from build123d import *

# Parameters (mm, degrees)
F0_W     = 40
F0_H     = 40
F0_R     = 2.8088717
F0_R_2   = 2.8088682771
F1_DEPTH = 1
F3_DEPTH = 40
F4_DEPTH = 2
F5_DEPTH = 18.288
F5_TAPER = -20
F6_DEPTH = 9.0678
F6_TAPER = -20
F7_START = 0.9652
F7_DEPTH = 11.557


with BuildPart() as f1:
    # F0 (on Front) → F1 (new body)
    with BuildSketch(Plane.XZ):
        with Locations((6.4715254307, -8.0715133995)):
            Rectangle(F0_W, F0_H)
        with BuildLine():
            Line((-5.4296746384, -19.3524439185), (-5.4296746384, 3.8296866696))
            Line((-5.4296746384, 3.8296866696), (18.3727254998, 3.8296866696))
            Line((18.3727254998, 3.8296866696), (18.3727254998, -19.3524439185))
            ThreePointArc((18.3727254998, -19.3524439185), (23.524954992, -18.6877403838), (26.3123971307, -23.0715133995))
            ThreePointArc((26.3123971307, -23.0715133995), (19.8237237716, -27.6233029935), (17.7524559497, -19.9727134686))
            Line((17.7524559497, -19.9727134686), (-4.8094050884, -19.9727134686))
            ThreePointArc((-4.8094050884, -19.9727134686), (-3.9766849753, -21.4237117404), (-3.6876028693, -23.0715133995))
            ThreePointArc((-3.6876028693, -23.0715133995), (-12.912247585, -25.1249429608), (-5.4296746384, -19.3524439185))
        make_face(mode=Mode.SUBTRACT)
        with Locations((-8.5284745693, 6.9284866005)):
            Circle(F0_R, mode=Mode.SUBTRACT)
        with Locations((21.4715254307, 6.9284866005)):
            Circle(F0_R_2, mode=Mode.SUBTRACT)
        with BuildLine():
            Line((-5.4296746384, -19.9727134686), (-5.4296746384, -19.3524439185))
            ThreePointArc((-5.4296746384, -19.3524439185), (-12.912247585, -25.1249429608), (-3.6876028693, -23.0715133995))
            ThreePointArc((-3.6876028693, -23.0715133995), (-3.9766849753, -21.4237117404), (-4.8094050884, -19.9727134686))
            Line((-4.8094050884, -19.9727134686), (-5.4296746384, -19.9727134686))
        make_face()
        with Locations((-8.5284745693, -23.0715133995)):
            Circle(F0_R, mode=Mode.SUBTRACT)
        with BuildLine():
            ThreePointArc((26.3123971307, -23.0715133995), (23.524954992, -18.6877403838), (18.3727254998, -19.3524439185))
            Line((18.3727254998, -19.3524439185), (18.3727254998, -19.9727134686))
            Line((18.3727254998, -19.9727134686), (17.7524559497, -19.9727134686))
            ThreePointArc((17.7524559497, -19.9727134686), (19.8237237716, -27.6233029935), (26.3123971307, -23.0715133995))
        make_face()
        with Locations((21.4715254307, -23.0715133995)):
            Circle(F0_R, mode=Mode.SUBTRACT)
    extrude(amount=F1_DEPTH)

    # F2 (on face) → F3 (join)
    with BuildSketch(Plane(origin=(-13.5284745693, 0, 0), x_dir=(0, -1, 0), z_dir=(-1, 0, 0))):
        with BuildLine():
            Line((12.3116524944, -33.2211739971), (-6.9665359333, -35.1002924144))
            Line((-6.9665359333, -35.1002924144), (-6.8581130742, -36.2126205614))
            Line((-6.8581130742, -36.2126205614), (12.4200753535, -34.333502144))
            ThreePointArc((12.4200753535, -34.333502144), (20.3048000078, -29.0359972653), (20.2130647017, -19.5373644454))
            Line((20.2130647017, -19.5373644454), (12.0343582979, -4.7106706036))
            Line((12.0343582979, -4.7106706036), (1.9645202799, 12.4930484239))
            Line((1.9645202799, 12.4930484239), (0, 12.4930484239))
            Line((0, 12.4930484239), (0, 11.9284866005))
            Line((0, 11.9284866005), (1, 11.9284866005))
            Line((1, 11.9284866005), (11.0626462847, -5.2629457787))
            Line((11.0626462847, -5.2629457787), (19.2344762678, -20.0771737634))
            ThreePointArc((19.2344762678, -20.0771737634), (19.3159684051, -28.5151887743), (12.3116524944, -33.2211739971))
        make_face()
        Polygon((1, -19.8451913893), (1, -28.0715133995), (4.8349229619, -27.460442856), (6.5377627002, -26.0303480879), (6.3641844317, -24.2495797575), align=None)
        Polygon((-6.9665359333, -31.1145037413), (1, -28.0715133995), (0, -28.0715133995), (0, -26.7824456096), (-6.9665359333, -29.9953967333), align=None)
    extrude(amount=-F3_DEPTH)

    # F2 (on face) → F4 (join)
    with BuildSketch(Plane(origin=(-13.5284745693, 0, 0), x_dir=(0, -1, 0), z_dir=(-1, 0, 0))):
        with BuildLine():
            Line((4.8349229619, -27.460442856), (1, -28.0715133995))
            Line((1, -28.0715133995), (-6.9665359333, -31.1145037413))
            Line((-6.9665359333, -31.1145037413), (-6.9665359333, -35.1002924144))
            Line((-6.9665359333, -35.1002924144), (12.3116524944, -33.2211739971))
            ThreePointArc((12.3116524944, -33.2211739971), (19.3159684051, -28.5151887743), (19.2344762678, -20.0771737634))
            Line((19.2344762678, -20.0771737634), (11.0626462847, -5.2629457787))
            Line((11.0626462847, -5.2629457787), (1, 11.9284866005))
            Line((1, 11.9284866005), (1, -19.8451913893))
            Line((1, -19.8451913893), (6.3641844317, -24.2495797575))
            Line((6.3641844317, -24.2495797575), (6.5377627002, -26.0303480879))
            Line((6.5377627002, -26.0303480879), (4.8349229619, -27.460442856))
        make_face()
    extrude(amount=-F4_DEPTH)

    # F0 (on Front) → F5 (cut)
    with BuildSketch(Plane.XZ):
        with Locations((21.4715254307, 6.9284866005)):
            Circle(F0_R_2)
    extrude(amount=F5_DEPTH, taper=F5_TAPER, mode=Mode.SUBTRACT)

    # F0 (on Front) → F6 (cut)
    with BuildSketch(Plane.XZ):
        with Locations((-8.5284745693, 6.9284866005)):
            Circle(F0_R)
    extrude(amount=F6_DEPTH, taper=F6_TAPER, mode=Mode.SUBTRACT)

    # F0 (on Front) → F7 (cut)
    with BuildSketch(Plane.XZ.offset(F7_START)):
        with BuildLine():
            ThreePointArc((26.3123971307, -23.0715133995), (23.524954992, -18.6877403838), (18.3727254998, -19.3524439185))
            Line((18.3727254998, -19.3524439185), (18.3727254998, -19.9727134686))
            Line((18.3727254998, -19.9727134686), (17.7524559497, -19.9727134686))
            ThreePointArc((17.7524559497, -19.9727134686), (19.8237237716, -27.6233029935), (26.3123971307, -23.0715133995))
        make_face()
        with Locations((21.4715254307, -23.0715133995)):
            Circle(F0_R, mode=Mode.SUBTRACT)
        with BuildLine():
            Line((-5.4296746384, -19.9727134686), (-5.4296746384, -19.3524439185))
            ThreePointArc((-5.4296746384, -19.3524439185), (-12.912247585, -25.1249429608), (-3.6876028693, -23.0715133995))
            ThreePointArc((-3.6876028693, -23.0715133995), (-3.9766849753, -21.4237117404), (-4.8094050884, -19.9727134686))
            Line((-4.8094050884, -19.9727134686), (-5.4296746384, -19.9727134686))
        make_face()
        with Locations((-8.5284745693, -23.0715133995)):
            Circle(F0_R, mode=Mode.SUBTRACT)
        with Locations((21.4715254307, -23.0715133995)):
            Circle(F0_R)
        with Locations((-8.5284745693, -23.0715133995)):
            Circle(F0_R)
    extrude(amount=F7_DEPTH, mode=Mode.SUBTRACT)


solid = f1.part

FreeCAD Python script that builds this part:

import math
import FreeCAD as App
import Part
import Sketcher
Q = App.Units.Quantity


def add_polygon(sketch, points):
    """Adds a closed chain of lines whose ends are joined by coincident constraints."""
    first, n = sketch.GeometryCount, len(points)
    for a, b in zip(points, points[1:] + points[:1]):
        sketch.addGeometry(Part.LineSegment(App.Vector(*a, 0), App.Vector(*b, 0)), False)
    for i in range(n):
        sketch.addConstraint(Sketcher.Constraint("Coincident", first + i, 2, first + (i + 1) % n, 1))

doc = App.newDocument("Part")
body = doc.addObject("PartDesign::Body", "Body")

# Sketch on XZ plane
sketch1 = doc.addObject("Sketcher::SketchObject", "Sketch")
body.addObject(sketch1)
sketch1.AttachmentSupport = (doc.XZ_Plane, [""])
sketch1.MapMode = "FlatFace"
add_polygon(sketch1, [(-13.5, 11.9), (-13.5, -28.1), (26.5, -28.1), (26.5, 11.9)])  # lines 0-3
sketch1.addGeometry(Part.Circle(App.Vector(-8.5, -23.1, 0), App.Vector(0, 0, 1), 2.8), False)  # 4
sketch1.addGeometry(Part.Circle(App.Vector(21.5, -23.1, 0), App.Vector(0, 0, 1), 2.8), False)  # 5
add_polygon(sketch1, [(-5.4, 3.8), (18.4, 3.8), (18.4, -20), (-5.4, -20)])  # lines 6-9
sketch1.addGeometry(Part.Circle(App.Vector(-8.5, 6.9, 0), App.Vector(0, 0, 1), 2.8), False)  # 10
sketch1.addGeometry(Part.Circle(App.Vector(21.5, 6.9, 0), App.Vector(0, 0, 1), 2.8), False)  # 11
sketch1.addConstraint(Sketcher.Constraint("Vertical", 0))
sketch1.addConstraint(Sketcher.Constraint("Horizontal", 1))
sketch1.addConstraint(Sketcher.Constraint("Vertical", 2))
sketch1.addConstraint(Sketcher.Constraint("Horizontal", 3))
sketch1.addConstraint(Sketcher.Constraint("Horizontal", 6))
sketch1.addConstraint(Sketcher.Constraint("Vertical", 7))
sketch1.addConstraint(Sketcher.Constraint("Horizontal", 8))
sketch1.addConstraint(Sketcher.Constraint("Vertical", 9))
sketch1.addConstraint(Sketcher.Constraint("Equal", 4, 5))
sketch1.addConstraint(Sketcher.Constraint("Equal", 5, 10))
sketch1.addConstraint(Sketcher.Constraint("Horizontal", 4, 3, 5, 3))
sketch1.addConstraint(Sketcher.Constraint("Horizontal", 10, 3, 11, 3))
sketch1.addConstraint(Sketcher.Constraint("Vertical", 4, 3, 10, 3))
sketch1.addConstraint(Sketcher.Constraint("Vertical", 5, 3, 11, 3))
sketch1.addConstraint(Sketcher.Constraint("Equal", 3, 0))
sketch1.addConstraint(Sketcher.Constraint("Equal", 8, 7))
sketch1.addConstraint(Sketcher.Constraint("DistanceX", 6, 2, 11, 3, Q("0.122 in")))
sketch1.addConstraint(Sketcher.Constraint("DistanceY", 6, 2, 11, 3, Q("0.122 in")))
sketch1.addConstraint(Sketcher.Constraint("DistanceY", 5, 3, 7, 2, Q("0.122 in")))
sketch1.addConstraint(Sketcher.Constraint("DistanceX", 4, 3, 8, 2, Q("0.122 in")))
sketch1.addConstraint(Sketcher.Constraint("Diameter", 4, Q("5.617743 mm")))
sketch1.addConstraint(Sketcher.Constraint("Diameter", 11, Q("5.617737 mm")))
sketch1.addConstraint(Sketcher.Constraint("DistanceX", 1, 1, 1, 2, Q("40 mm")))
sketch1.addConstraint(Sketcher.Constraint("DistanceX", 6, 1, 6, 2, Q("23.8024 mm")))
sketch1.addConstraint(Sketcher.Constraint("DistanceX", 0, 2, 4, 3, Q("5 mm")))
sketch1.addConstraint(Sketcher.Constraint("DistanceY", 0, 2, 4, 3, Q("5 mm")))
sketch1.addConstraint(Sketcher.Constraint("DistanceX", 4, 3, -1, 1, Q("8.528475 mm")))
sketch1.addConstraint(Sketcher.Constraint("DistanceY", 4, 3, -1, 1, Q("23.071513 mm")))
pad1 = doc.addObject("PartDesign::Pad", "Pad")
body.addObject(pad1)
pad1.Profile = sketch1
pad1.Length = 1

# Sketch on YZ plane
sketch2 = doc.addObject("Sketcher::SketchObject", "Sketch001")
body.addObject(sketch2)
sketch2.AttachmentSupport = (doc.YZ_Plane, [""])
sketch2.MapMode = "FlatFace"
sketch2.AttachmentOffset = App.Placement(App.Vector(0, 0, -13.528475), App.Rotation())
sketch2.addGeometry(Part.LineSegment(App.Vector(-12.3, -33.2, 0), App.Vector(7, -35.1, 0)), False)  # 0
sketch2.addGeometry(Part.LineSegment(App.Vector(7, -35.1, 0), App.Vector(6.9, -36.2, 0)), False)  # 1
sketch2.addGeometry(Part.LineSegment(App.Vector(6.9, -36.2, 0), App.Vector(-12.4, -34.3, 0)), False)  # 2
sketch2.addGeometry(Part.ArcOfCircle(Part.Circle(App.Vector(-11.4, -24.4, 0), App.Vector(0, 0, 1), 10), math.radians(151), math.radians(264)), False)  # 3
sketch2.addGeometry(Part.LineSegment(App.Vector(-20.2, -19.5, 0), App.Vector(-12, -4.7, 0)), False)  # 4
sketch2.addGeometry(Part.LineSegment(App.Vector(-12, -4.7, 0), App.Vector(-2, 12.5, 0)), False)  # 5
sketch2.addGeometry(Part.LineSegment(App.Vector(-2, 12.5, 0), App.Vector(0, 12.5, 0)), False)  # 6
sketch2.addGeometry(Part.LineSegment(App.Vector(0, 12.5, 0), App.Vector(0, 11.9, 0)), False)  # 7
sketch2.addGeometry(Part.LineSegment(App.Vector(0, 11.9, 0), App.Vector(-1, 11.9, 0)), False)  # 8
sketch2.addGeometry(Part.LineSegment(App.Vector(-1, 11.9, 0), App.Vector(-11.1, -5.3, 0)), False)  # 9
sketch2.addGeometry(Part.LineSegment(App.Vector(-11.1, -5.3, 0), App.Vector(-19.2, -20.1, 0)), False)  # 10
sketch2.addGeometry(Part.ArcOfCircle(Part.Circle(App.Vector(-11.4, -24.4, 0), App.Vector(0, 0, 1), 8.9), math.radians(151), math.radians(264)), False)  # 11
add_polygon(sketch2, [(-1, -19.8), (-1, -28.1), (-4.8, -27.5), (-6.5, -26), (-6.4, -24.2)])  # lines 12-16
add_polygon(sketch2, [(7, -31.1), (-1, -28.1), (0, -28.1), (0, -26.8), (7, -30)])  # lines 17-21
sketch2.addConstraint(Sketcher.Constraint("Coincident", 0, 2, 1, 1))
sketch2.addConstraint(Sketcher.Constraint("Coincident", 1, 2, 2, 1))
sketch2.addConstraint(Sketcher.Constraint("Tangent", 2, 2, 3, 2))
sketch2.addConstraint(Sketcher.Constraint("Tangent", 3, 1, 4, 1))
sketch2.addConstraint(Sketcher.Constraint("Coincident", 4, 2, 5, 1))
sketch2.addConstraint(Sketcher.Constraint("Coincident", 5, 2, 6, 1))
sketch2.addConstraint(Sketcher.Constraint("Coincident", 6, 2, 7, 1))
sketch2.addConstraint(Sketcher.Constraint("Coincident", 7, 2, 8, 1))
sketch2.addConstraint(Sketcher.Constraint("Coincident", 8, 2, 9, 1))
sketch2.addConstraint(Sketcher.Constraint("Coincident", 9, 2, 10, 1))
sketch2.addConstraint(Sketcher.Constraint("Tangent", 10, 2, 11, 1))
sketch2.addConstraint(Sketcher.Constraint("Tangent", 11, 2, 0, 1))
sketch2.addConstraint(Sketcher.Constraint("Horizontal", 6))
sketch2.addConstraint(Sketcher.Constraint("Vertical", 7))
sketch2.addConstraint(Sketcher.Constraint("Horizontal", 8))
sketch2.addConstraint(Sketcher.Constraint("Vertical", 12))
sketch2.addConstraint(Sketcher.Constraint("Horizontal", 18))
sketch2.addConstraint(Sketcher.Constraint("Vertical", 19))
sketch2.addConstraint(Sketcher.Constraint("Vertical", 21))
sketch2.addConstraint(Sketcher.Constraint("Coincident", 11, 3, 3, 3))
sketch2.addConstraint(Sketcher.Constraint("Coincident", 17, 2, 12, 2))
sketch2.addConstraint(Sketcher.Constraint("PointOnObject", 6, 2, -2))
sketch2.addConstraint(Sketcher.Constraint("PointOnObject", 18, 2, -2))
sketch2.addConstraint(Sketcher.Constraint("Perpendicular", 0, 1))
sketch2.addConstraint(Sketcher.Constraint("Perpendicular", 1, 2))
sketch2.addConstraint(Sketcher.Constraint("Parallel", 5, 9))
sketch2.addConstraint(Sketcher.Constraint("Parallel", 4, 10))
sketch2.addConstraint(Sketcher.Constraint("Perpendicular", 2, 15))
sketch2.addConstraint(Sketcher.Constraint("Vertical", 8, 2, 12, 2))
sketch2.addConstraint(Sketcher.Constraint("Vertical", 0, 2, 20, 2))
sketch2.addConstraint(Sketcher.Constraint("Distance", 1, Q("0.044 in")))
sketch2.addConstraint(Sketcher.Constraint("Radius", 3, Q("10.00895 mm")))
sketch2.addConstraint(Sketcher.Constraint("DistanceX", 8, 2, 8, 1, Q("1 mm")))
sketch2.addConstraint(Sketcher.Constraint("Distance", 14, Q("2.223698 mm")))
sketch2.addConstraint(Sketcher.Constraint("DistanceX", 6, 1, 6, 2, Q("1.96452 mm")))
sketch2.addConstraint(Sketcher.Constraint("DistanceY", 7, 2, 7, 1, Q("0.564562 mm")))
sketch2.addConstraint(Sketcher.Constraint("DistanceY", 3, 3, 3, 1, Q("4.8344 mm")))
sketch2.addConstraint(Sketcher.Constraint("DistanceX", 3, 1, 0, 2, Q("27.179601 mm")))
sketch2.addConstraint(Sketcher.Constraint("DistanceX", 10, 2, 2, 2, Q("6.814401 mm")))
sketch2.addConstraint(Sketcher.Constraint("Distance", 4, Q("16.93287 mm")))
sketch2.addConstraint(Sketcher.Constraint("Distance", 5, Q("19.934131 mm")))
sketch2.addConstraint(Sketcher.Constraint("DistanceY", 12, 2, 12, 1, Q("8.226322 mm")))
sketch2.addConstraint(Sketcher.Constraint("DistanceY", 19, 1, 19, 2, Q("1.289068 mm")))
sketch2.addConstraint(Sketcher.Constraint("DistanceY", 21, 2, 21, 1, Q("1.119107 mm")))
sketch2.addConstraint(Sketcher.Constraint("DistanceY", 1, 2, -1, 1, Q("36.212621 mm")))
sketch2.addConstraint(Sketcher.Constraint("DistanceX", 4, 2, -1, 1, Q("12.034358 mm")))
sketch2.addConstraint(Sketcher.Constraint("DistanceY", 14, 2, -1, 1, Q("26.030348 mm")))
sketch2.addConstraint(Sketcher.Constraint("DistanceY", 15, 2, -1, 1, Q("24.24958 mm")))
sketch2.addConstraint(Sketcher.Constraint("DistanceY", 16, 2, -1, 1, Q("19.845191 mm")))
sketch2.addConstraint(Sketcher.Constraint("DistanceY", 12, 2, 13, 2, Q("0.611071 mm")))
sketch2.addConstraint(Sketcher.Constraint("DistanceX", 11, 2, 13, 2, Q("7.47673 mm")))
sketch2.addConstraint(Sketcher.Constraint("DistanceY", 20, 2, 19, 2, Q("3.212951 mm")))
pad2 = doc.addObject("PartDesign::Pad", "Pad001")
body.addObject(pad2)
pad2.Profile = sketch2
pad2.Length = 40

# Sketch on YZ plane
sketch3 = doc.addObject("Sketcher::SketchObject", "Sketch002")
body.addObject(sketch3)
sketch3.AttachmentSupport = (doc.YZ_Plane, [""])
sketch3.MapMode = "FlatFace"
sketch3.AttachmentOffset = App.Placement(App.Vector(0, 0, -13.528475), App.Rotation())
sketch3.addGeometry(Part.LineSegment(App.Vector(-4.834923, -27.460443, 0), App.Vector(-1, -28.071513, 0)), False)
sketch3.addGeometry(Part.LineSegment(App.Vector(-1, -28.071513, 0), App.Vector(6.966536, -31.114504, 0)), False)
sketch3.addGeometry(Part.LineSegment(App.Vector(6.966536, -31.114504, 0), App.Vector(6.966536, -35.100292, 0)), False)
sketch3.addGeometry(Part.LineSegment(App.Vector(6.966536, -35.100292, 0), App.Vector(-12.311652, -33.221174, 0)), False)
sketch3.addGeometry(Part.ArcOfCircle(Part.Circle(App.Vector(-11.449067, -24.371764, 0), App.Vector(0, 0, 1), 8.89135), math.radians(151.117976), math.radians(264.43275)), False)
sketch3.addGeometry(Part.LineSegment(App.Vector(-19.234476, -20.077174, 0), App.Vector(-11.062646, -5.262946, 0)), False)
sketch3.addGeometry(Part.LineSegment(App.Vector(-11.062646, -5.262946, 0), App.Vector(-1, 11.928487, 0)), False)
sketch3.addGeometry(Part.LineSegment(App.Vector(-1, 11.928487, 0), App.Vector(-1, -19.845191, 0)), False)
sketch3.addGeometry(Part.LineSegment(App.Vector(-1, -19.845191, 0), App.Vector(-6.364184, -24.24958, 0)), False)
sketch3.addGeometry(Part.LineSegment(App.Vector(-6.364184, -24.24958, 0), App.Vector(-6.537763, -26.030348, 0)), False)
sketch3.addGeometry(Part.LineSegment(App.Vector(-6.537763, -26.030348, 0), App.Vector(-4.834923, -27.460443, 0)), False)
sketch3.addConstraint(Sketcher.Constraint("Coincident", 0, 2, 1, 1))
sketch3.addConstraint(Sketcher.Constraint("Coincident", 1, 2, 2, 1))
sketch3.addConstraint(Sketcher.Constraint("Coincident", 2, 2, 3, 1))
sketch3.addConstraint(Sketcher.Constraint("Coincident", 3, 2, 4, 2))
sketch3.addConstraint(Sketcher.Constraint("Coincident", 4, 1, 5, 1))
sketch3.addConstraint(Sketcher.Constraint("Coincident", 5, 2, 6, 1))
sketch3.addConstraint(Sketcher.Constraint("Coincident", 6, 2, 7, 1))
sketch3.addConstraint(Sketcher.Constraint("Coincident", 7, 2, 8, 1))
sketch3.addConstraint(Sketcher.Constraint("Coincident", 8, 2, 9, 1))
sketch3.addConstraint(Sketcher.Constraint("Coincident", 9, 2, 10, 1))
sketch3.addConstraint(Sketcher.Constraint("Coincident", 10, 2, 0, 1))
sketch3.addConstraint(Sketcher.Constraint("Vertical", 2))
sketch3.addConstraint(Sketcher.Constraint("Vertical", 7))
sketch3.addConstraint(Sketcher.Constraint("Radius", 4, Q("8.89135 mm")))
sketch3.addConstraint(Sketcher.Constraint("Distance", 10, Q("2.223698 mm")))
sketch3.addConstraint(Sketcher.Constraint("DistanceY", 2, 2, 2, 1, Q("3.985789 mm")))
sketch3.addConstraint(Sketcher.Constraint("DistanceX", 0, 2, -1, 1, Q("1 mm")))
sketch3.addConstraint(Sketcher.Constraint("DistanceX", 6, 2, -1, 1, Q("1 mm")))
sketch3.addConstraint(Sketcher.Constraint("DistanceY", 3, 2, 4, 1, Q("13.144 mm")))
sketch3.addConstraint(Sketcher.Constraint("DistanceY", 0, 2, 6, 2, Q("40 mm")))
sketch3.addConstraint(Sketcher.Constraint("DistanceY", 2, 2, 7, 2, Q("15.255101 mm")))
sketch3.addConstraint(Sketcher.Constraint("DistanceY", 7, 2, 7, 1, Q("31.773678 mm")))
sketch3.addConstraint(Sketcher.Constraint("DistanceY", 7, 2, -1, 1, Q("19.845191 mm")))
sketch3.addConstraint(Sketcher.Constraint("DistanceY", 8, 2, -1, 1, Q("24.24958 mm")))
sketch3.addConstraint(Sketcher.Constraint("DistanceY", 9, 2, -1, 1, Q("26.030348 mm")))
sketch3.addConstraint(Sketcher.Constraint("DistanceY", 0, 2, 4, 3, Q("3.699749 mm")))
sketch3.addConstraint(Sketcher.Constraint("DistanceY", 3, 2, 4, 3, Q("8.84941 mm")))
sketch3.addConstraint(Sketcher.Constraint("DistanceX", 3, 2, 2, 2, Q("19.278188 mm")))
sketch3.addConstraint(Sketcher.Constraint("DistanceX", 4, 1, 5, 2, Q("8.17183 mm")))
sketch3.addConstraint(Sketcher.Constraint("DistanceY", 4, 3, 5, 2, Q("19.108818 mm")))
sketch3.addConstraint(Sketcher.Constraint("DistanceX", 3, 2, 8, 2, Q("5.947468 mm")))
sketch3.addConstraint(Sketcher.Constraint("DistanceX", 9, 2, 8, 2, Q("0.173578 mm")))
sketch3.addConstraint(Sketcher.Constraint("DistanceX", 9, 2, 10, 2, Q("1.70284 mm")))
sketch3.addConstraint(Sketcher.Constraint("Distance", 0, Q("3.883303 mm")))
pad3 = doc.addObject("PartDesign::Pad", "Pad002")
body.addObject(pad3)
pad3.Profile = sketch3
pad3.Length = 2

# Sketch on XZ plane
sketch4 = doc.addObject("Sketcher::SketchObject", "Sketch003")
body.addObject(sketch4)
sketch4.AttachmentSupport = (doc.XZ_Plane, [""])
sketch4.MapMode = "FlatFace"
sketch4.addGeometry(Part.Circle(App.Vector(21.5, 6.9, 0), App.Vector(0, 0, 1), 2.8), False)
sketch4.addConstraint(Sketcher.Constraint("Diameter", 0, Q("5.617737 mm")))
sketch4.addConstraint(Sketcher.Constraint("DistanceX", -1, 1, 0, 3, Q("21.471525 mm")))
sketch4.addConstraint(Sketcher.Constraint("DistanceY", -1, 1, 0, 3, Q("6.928487 mm")))
pocket1 = doc.addObject("PartDesign::Pocket", "Pocket")
body.addObject(pocket1)
pocket1.Profile = sketch4
pocket1.Length = Q("0.72 in")
pocket1.Reversed = True
pocket1.TaperAngle = 20

# Sketch on XZ plane
sketch5 = doc.addObject("Sketcher::SketchObject", "Sketch004")
body.addObject(sketch5)
sketch5.AttachmentSupport = (doc.XZ_Plane, [""])
sketch5.MapMode = "FlatFace"
sketch5.addGeometry(Part.Circle(App.Vector(-8.5, 6.9, 0), App.Vector(0, 0, 1), 2.8), False)
sketch5.addConstraint(Sketcher.Constraint("Diameter", 0, Q("5.617743 mm")))
sketch5.addConstraint(Sketcher.Constraint("DistanceX", 0, 3, -1, 1, Q("8.528475 mm")))
sketch5.addConstraint(Sketcher.Constraint("DistanceY", -1, 1, 0, 3, Q("6.928487 mm")))
pocket2 = doc.addObject("PartDesign::Pocket", "Pocket001")
body.addObject(pocket2)
pocket2.Profile = sketch5
pocket2.Length = Q("0.357 in")
pocket2.Reversed = True
pocket2.TaperAngle = 20

# Sketch on XZ plane
sketch6 = doc.addObject("Sketcher::SketchObject", "Sketch005")
body.addObject(sketch6)
sketch6.AttachmentSupport = (doc.XZ_Plane, [""])
sketch6.MapMode = "FlatFace"
sketch6.AttachmentOffset = App.Placement(App.Vector(0, 0, 0.038 * 25.4), App.Rotation())
sketch6.addGeometry(Part.ArcOfCircle(Part.Circle(App.Vector(21.5, -23.1, 0), App.Vector(0, 0, 1), 4.8), math.radians(0), math.radians(130)), False)
sketch6.addGeometry(Part.LineSegment(App.Vector(18.4, -19.4, 0), App.Vector(18.4, -20, 0)), False)
sketch6.addGeometry(Part.LineSegment(App.Vector(18.4, -20, 0), App.Vector(17.8, -20, 0)), False)
sketch6.addGeometry(Part.ArcOfCircle(Part.Circle(App.Vector(21.5, -23.1, 0), App.Vector(0, 0, 1), 4.8), math.radians(140), math.radians(360)), False)
sketch6.addGeometry(Part.LineSegment(App.Vector(-5.4, -20, 0), App.Vector(-5.4, -19.4, 0)), False)
sketch6.addGeometry(Part.ArcOfCircle(Part.Circle(App.Vector(-8.5, -23.1, 0), App.Vector(0, 0, 1), 4.8), math.radians(50), math.radians(360)), False)
sketch6.addGeometry(Part.ArcOfCircle(Part.Circle(App.Vector(-8.5, -23.1, 0), App.Vector(0, 0, 1), 4.8), math.radians(0), math.radians(40)), False)
sketch6.addGeometry(Part.LineSegment(App.Vector(-4.8, -20, 0), App.Vector(-5.4, -20, 0)), False)
sketch6.addConstraint(Sketcher.Constraint("Coincident", 0, 2, 1, 1))
sketch6.addConstraint(Sketcher.Constraint("Coincident", 1, 2, 2, 1))
sketch6.addConstraint(Sketcher.Constraint("Coincident", 2, 2, 3, 1))
sketch6.addConstraint(Sketcher.Constraint("Tangent", 3, 2, 0, 1))
sketch6.addConstraint(Sketcher.Constraint("Coincident", 4, 2, 5, 1))
sketch6.addConstraint(Sketcher.Constraint("Tangent", 5, 2, 6, 1))
sketch6.addConstraint(Sketcher.Constraint("Coincident", 6, 2, 7, 1))
sketch6.addConstraint(Sketcher.Constraint("Coincident", 7, 2, 4, 1))
sketch6.addConstraint(Sketcher.Constraint("Vertical", 1))
sketch6.addConstraint(Sketcher.Constraint("Horizontal", 2))
sketch6.addConstraint(Sketcher.Constraint("Vertical", 4))
sketch6.addConstraint(Sketcher.Constraint("Horizontal", 7))
sketch6.addConstraint(Sketcher.Constraint("Equal", 0, 3))
sketch6.addConstraint(Sketcher.Constraint("Equal", 3, 5))
sketch6.addConstraint(Sketcher.Constraint("Equal", 5, 6))
sketch6.addConstraint(Sketcher.Constraint("Horizontal", 3, 3, 5, 3))
sketch6.addConstraint(Sketcher.Constraint("Horizontal", 6, 3, 3, 2))
sketch6.addConstraint(Sketcher.Constraint("Horizontal", 0, 2, 4, 2))
sketch6.addConstraint(Sketcher.Constraint("Horizontal", 3, 2, 5, 2))
sketch6.addConstraint(Sketcher.Constraint("Horizontal", 2, 2, 6, 2))
sketch6.addConstraint(Sketcher.Constraint("Equal", 7, 1))
sketch6.addConstraint(Sketcher.Constraint("Radius", 0, Q("4.840872 mm")))
sketch6.addConstraint(Sketcher.Constraint("DistanceX", 0, 2, 0, 3, Q("0.122 in")))
sketch6.addConstraint(Sketcher.Constraint("DistanceX", 5, 3, 0, 3, Q("30 mm")))
sketch6.addConstraint(Sketcher.Constraint("DistanceX", -1, 1, 0, 3, Q("21.471525 mm")))
sketch6.addConstraint(Sketcher.Constraint("DistanceY", 0, 3, -1, 1, Q("23.071513 mm")))
pocket3 = doc.addObject("PartDesign::Pocket", "Pocket002")
body.addObject(pocket3)
pocket3.Profile = sketch6
pocket3.Length = Q("0.455 in")
pocket3.Reversed = True

doc.recompute()
